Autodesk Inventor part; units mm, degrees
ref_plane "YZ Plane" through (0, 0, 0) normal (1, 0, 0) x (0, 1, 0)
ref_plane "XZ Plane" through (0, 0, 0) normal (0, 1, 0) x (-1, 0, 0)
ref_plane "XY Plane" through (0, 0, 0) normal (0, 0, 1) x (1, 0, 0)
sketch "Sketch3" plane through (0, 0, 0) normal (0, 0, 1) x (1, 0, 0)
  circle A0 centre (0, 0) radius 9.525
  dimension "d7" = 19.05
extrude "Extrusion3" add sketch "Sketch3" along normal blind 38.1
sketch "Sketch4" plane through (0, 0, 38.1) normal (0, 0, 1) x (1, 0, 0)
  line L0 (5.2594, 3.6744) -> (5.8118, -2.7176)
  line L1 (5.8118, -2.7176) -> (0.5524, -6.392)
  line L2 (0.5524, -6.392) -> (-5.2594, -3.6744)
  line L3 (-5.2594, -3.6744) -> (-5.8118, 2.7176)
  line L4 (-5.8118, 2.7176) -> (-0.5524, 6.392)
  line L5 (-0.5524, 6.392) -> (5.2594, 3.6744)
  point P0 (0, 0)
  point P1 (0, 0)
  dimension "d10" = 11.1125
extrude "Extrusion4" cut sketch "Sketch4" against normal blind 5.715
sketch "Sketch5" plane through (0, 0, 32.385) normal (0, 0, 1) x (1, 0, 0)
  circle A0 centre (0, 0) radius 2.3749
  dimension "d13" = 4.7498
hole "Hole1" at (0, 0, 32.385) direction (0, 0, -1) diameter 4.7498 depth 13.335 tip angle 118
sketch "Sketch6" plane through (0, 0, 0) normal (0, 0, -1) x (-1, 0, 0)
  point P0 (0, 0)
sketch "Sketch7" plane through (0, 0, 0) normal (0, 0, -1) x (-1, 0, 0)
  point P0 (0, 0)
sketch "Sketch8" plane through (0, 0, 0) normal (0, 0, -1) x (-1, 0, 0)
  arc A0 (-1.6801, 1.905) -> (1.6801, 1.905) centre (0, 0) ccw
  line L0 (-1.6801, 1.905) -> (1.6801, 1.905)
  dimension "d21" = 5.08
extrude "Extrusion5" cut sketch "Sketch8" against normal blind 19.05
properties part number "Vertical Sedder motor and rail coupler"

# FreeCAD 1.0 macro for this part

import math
import FreeCAD as App
import Part
import Sketcher
from FreeCAD import Vector
Q = App.Units.Quantity


def add_polygon(sketch, points):
    """Adds a closed chain of lines whose ends are joined by coincident constraints."""
    first, n = sketch.GeometryCount, len(points)
    for a, b in zip(points, points[1:] + points[:1]):
        sketch.addGeometry(Part.LineSegment(App.Vector(*a, 0), App.Vector(*b, 0)), False)
    for i in range(n):
        sketch.addConstraint(Sketcher.Constraint("Coincident", first + i, 2, first + (i + 1) % n, 1))

doc = App.newDocument("Part")
body = doc.addObject("PartDesign::Body", "Body")

# Sketch on XY plane
sketch1 = body.newObject("Sketcher::SketchObject", "Sketch")
sketch1.AttachmentSupport = (doc.getObject("XY_Plane"), [""])
sketch1.MapMode = "FlatFace"
sketch1.addGeometry(Part.Circle(Vector(0, 0, 0), Vector(0, 0, 1), 10), False)
sketch1.addConstraint([
    Sketcher.Constraint("Coincident", 0, 3, -1, 1),
    Sketcher.Constraint("Diameter", 0, Q("0.75 in")),
])
pad1 = body.newObject("PartDesign::Pad", "Pad")
pad1.Profile = sketch1
pad1.Length = Q("1.5 in")

# Sketch on XY plane
sketch2 = body.newObject("Sketcher::SketchObject", "Sketch001")
sketch2.AttachmentSupport = (doc.getObject("XY_Plane"), [""])
sketch2.MapMode = "FlatFace"
sketch2.AttachmentOffset = App.Placement(Vector(0, 0, 1.5 * 25.4), App.Rotation())
add_polygon(sketch2, [(6, -3), (5, 4), (-1, 6), (-6, 3), (-5, -4), (1, -6)])  # lines 0-5
sketch2.addConstraint([
    Sketcher.Constraint("Symmetric", 0, 2, 3, 2, -1, 1),
    Sketcher.Constraint("Symmetric", 1, 2, 4, 2, -1, 1),
    Sketcher.Constraint("Symmetric", 2, 2, 5, 2, -1, 1),
    Sketcher.Constraint("Equal", 0, 1),
    Sketcher.Constraint("Equal", 1, 2),
    Sketcher.Constraint("Angle", 0, Q("94.9393 deg")),
    Sketcher.Constraint("Angle", 1, Q("154.9392 deg")),
    Sketcher.Constraint("Angle", 2, Q("-145.0605 deg")),
    Sketcher.Constraint("DistanceY", -1, 1, 2, 2, Q("0.107 in")),
])
pocket1 = body.newObject("PartDesign::Pocket", "Pocket")
pocket1.Profile = sketch2
pocket1.Length = Q("0.225 in")

# Sketch on XY plane
sketch3 = body.newObject("Sketcher::SketchObject", "Sketch002")
sketch3.AttachmentSupport = (doc.getObject("XY_Plane"), [""])
sketch3.MapMode = "FlatFace"
sketch3.AttachmentOffset = App.Placement(Vector(0, 0, 1.275 * 25.4), App.Rotation())
sketch3.addGeometry(Part.Circle(Vector(0, 0, 0), Vector(0, 0, 1), 2.4), False)
sketch3.addConstraint([
    Sketcher.Constraint("Coincident", 0, 3, -1, 1),
    Sketcher.Constraint("Diameter", 0, Q("0.187 in")),
])
doc.recompute()
hole = body.newObject("PartDesign::Hole", "Hole")
hole.Profile = sketch3
hole.ThreadType = "None"
hole.Diameter = Q("0.187 in")
hole.DepthType = "Dimension"
hole.Depth = Q("0.525 in")
hole.DrillPoint = "Angled"
hole.DrillPointAngle = 118

# Sketch on XY plane
sketch4 = body.newObject("Sketcher::SketchObject", "Sketch003")
sketch4.AttachmentSupport = (doc.getObject("XY_Plane"), [""])
sketch4.MapMode = "FlatFace"
sketch4.addGeometry([
    Part.LineSegment(Vector(-1.7, 1.9, 0), Vector(1.7, 1.9, 0)),
    Part.ArcOfCircle(Part.Circle(Vector(0, 0, 0), Vector(0, 0, 1), 2.5), math.radians(131), math.radians(409)),
], False)
sketch4.addConstraint([
    Sketcher.Constraint("Coincident", 0, 1, 1, 1),
    Sketcher.Constraint("Coincident", 1, 2, 0, 2),
    Sketcher.Constraint("Horizontal", 0),
    Sketcher.Constraint("Coincident", 1, 3, -1, 1),
    Sketcher.Constraint("Radius", 1, Q("0.1 in")),
    Sketcher.Constraint("DistanceX", 0, 1, 0, 2, Q("0.1323 in")),
])
pocket2 = body.newObject("PartDesign::Pocket", "Pocket001")
pocket2.Profile = sketch4
pocket2.Length = Q("0.75 in")
pocket2.Reversed = True

doc.recompute()
